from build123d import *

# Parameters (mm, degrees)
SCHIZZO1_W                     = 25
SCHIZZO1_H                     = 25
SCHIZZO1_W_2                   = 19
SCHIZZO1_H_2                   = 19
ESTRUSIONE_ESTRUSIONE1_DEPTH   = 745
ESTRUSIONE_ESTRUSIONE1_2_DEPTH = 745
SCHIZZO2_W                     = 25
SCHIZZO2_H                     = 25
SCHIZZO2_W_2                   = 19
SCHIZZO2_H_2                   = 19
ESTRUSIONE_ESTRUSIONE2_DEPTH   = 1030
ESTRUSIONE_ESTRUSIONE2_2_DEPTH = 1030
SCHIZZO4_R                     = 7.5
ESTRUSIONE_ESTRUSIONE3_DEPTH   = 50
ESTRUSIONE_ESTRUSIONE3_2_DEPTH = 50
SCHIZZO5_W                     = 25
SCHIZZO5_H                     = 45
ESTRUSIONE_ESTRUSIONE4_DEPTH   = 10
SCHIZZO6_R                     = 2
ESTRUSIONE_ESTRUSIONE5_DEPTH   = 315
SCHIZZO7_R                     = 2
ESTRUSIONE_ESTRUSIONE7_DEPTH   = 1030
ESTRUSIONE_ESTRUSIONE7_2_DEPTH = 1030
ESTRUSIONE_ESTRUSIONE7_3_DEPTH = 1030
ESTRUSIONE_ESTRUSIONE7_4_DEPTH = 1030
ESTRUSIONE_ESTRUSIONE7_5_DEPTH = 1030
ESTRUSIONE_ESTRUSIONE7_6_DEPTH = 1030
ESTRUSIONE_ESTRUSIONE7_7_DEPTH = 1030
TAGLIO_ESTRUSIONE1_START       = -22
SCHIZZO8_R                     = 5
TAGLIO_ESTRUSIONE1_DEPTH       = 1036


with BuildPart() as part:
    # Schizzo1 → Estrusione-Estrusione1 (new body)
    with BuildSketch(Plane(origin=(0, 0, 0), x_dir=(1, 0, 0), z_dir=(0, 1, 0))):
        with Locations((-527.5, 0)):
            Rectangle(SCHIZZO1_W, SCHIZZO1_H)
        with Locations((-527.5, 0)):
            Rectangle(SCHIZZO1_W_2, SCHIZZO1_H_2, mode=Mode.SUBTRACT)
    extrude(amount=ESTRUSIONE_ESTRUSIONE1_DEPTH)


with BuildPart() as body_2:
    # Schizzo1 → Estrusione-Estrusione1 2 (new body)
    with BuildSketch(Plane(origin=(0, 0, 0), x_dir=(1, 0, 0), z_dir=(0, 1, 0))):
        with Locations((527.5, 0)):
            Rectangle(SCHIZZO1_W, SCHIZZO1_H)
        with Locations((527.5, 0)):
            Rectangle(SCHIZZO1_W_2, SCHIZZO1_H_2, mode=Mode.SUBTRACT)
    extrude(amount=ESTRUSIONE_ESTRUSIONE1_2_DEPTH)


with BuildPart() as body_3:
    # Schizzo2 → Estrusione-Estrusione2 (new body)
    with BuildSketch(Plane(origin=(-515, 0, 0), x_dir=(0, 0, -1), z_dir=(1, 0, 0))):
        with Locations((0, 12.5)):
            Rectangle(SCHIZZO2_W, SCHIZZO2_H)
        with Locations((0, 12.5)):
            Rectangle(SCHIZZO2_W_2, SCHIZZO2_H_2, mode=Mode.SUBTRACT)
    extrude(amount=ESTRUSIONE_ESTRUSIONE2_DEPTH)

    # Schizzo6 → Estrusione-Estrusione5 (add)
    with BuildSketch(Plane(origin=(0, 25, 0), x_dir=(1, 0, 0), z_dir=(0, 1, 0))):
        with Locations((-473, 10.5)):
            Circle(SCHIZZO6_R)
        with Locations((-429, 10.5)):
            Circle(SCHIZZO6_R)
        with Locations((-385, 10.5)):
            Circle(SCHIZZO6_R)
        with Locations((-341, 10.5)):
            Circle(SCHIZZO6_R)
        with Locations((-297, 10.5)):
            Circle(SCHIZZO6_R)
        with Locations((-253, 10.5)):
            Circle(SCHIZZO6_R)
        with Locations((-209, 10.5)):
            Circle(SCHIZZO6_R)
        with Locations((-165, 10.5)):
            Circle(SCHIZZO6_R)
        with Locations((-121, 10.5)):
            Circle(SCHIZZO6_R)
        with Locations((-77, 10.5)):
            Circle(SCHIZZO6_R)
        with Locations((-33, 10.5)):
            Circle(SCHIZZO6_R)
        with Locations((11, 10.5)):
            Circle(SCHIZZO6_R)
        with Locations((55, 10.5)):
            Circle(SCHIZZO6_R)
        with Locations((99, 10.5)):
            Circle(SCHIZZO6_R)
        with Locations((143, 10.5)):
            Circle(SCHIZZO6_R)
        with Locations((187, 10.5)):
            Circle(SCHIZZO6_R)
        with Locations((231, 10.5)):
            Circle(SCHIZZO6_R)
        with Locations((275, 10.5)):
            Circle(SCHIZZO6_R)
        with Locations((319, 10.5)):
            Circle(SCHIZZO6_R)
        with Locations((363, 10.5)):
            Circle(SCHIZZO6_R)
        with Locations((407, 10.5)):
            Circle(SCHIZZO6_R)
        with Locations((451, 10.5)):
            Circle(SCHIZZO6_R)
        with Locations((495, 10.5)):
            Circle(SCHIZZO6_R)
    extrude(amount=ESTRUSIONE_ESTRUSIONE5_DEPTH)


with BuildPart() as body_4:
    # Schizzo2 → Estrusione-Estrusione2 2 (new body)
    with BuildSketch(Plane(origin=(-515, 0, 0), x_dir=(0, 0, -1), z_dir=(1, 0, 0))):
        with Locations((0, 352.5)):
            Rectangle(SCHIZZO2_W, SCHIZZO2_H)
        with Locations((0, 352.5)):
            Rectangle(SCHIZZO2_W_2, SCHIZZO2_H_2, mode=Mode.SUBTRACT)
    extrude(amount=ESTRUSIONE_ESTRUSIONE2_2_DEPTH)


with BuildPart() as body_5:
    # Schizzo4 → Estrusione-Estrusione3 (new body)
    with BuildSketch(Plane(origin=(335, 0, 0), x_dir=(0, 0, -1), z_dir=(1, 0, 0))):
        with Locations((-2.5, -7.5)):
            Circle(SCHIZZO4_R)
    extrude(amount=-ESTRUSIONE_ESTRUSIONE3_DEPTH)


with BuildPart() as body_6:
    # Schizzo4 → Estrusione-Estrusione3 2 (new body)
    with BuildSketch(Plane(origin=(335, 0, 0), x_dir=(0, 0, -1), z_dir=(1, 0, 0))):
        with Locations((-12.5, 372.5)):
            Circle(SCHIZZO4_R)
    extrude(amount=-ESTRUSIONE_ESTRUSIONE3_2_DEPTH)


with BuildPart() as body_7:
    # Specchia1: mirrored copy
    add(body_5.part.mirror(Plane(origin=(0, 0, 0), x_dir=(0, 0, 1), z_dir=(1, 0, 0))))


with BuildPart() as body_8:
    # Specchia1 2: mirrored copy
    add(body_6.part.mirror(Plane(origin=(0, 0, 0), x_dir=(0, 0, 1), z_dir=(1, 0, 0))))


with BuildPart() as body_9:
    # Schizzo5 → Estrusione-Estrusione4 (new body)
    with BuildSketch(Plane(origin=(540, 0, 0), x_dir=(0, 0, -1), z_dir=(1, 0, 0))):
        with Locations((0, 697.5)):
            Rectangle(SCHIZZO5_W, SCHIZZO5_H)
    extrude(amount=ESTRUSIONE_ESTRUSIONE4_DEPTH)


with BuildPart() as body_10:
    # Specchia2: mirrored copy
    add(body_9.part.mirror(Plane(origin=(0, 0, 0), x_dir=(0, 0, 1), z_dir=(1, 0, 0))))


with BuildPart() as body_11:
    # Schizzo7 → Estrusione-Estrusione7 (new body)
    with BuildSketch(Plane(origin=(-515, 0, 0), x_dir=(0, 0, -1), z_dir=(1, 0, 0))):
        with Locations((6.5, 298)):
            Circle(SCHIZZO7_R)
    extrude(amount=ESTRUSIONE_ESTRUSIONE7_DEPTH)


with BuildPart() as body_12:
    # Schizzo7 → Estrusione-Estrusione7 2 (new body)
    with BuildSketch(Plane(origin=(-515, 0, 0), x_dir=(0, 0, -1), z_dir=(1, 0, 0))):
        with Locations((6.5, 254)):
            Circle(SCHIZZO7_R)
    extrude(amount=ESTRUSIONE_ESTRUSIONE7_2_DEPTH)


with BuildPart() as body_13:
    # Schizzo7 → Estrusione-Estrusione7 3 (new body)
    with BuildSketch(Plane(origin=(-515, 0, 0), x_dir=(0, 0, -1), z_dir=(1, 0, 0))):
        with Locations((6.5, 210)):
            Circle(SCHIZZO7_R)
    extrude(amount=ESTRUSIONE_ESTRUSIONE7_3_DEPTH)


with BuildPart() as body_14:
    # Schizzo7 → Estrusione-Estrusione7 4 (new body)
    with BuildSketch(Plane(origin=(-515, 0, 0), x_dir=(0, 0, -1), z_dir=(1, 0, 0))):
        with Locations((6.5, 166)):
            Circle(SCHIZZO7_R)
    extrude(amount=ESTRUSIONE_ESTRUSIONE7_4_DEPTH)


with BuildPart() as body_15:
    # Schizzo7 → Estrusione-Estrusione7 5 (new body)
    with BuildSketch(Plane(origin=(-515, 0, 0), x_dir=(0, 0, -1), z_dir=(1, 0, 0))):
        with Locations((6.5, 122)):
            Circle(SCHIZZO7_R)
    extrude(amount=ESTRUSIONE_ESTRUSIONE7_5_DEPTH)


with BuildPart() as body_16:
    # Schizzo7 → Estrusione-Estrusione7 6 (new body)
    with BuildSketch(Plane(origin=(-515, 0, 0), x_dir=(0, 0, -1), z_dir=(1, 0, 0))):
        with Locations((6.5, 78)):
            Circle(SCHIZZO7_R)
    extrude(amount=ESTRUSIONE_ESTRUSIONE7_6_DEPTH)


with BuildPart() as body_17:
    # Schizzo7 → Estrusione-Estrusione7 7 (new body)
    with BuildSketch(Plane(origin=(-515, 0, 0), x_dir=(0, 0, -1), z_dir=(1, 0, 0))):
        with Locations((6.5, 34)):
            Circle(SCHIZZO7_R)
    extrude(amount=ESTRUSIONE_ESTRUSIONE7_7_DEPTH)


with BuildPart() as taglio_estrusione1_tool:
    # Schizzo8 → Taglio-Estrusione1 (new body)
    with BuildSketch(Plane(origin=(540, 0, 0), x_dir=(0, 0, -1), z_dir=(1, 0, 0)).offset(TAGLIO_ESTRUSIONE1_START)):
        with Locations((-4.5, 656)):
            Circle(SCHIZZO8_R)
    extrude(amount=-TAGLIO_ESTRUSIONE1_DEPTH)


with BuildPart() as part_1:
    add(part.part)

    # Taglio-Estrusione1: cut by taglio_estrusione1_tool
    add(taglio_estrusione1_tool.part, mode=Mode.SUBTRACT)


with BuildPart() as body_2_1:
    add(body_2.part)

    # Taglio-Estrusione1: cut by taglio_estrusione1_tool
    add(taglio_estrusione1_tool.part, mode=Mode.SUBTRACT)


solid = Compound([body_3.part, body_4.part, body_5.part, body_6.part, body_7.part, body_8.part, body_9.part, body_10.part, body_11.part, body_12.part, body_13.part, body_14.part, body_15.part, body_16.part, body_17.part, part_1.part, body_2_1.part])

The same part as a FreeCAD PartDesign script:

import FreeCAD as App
import Part
import Sketcher
Q = App.Units.Quantity


def add_polygon(sketch, points):
    """Adds a closed chain of lines whose ends are joined by coincident constraints."""
    first, n = sketch.GeometryCount, len(points)
    for a, b in zip(points, points[1:] + points[:1]):
        sketch.addGeometry(Part.LineSegment(App.Vector(*a, 0), App.Vector(*b, 0)), False)
    for i in range(n):
        sketch.addConstraint(Sketcher.Constraint("Coincident", first + i, 2, first + (i + 1) % n, 1))

doc = App.newDocument("Part")
body = doc.addObject("PartDesign::Body", "Body")

# Sketch on XZ plane
sketch1 = body.newObject("Sketcher::SketchObject", "Sketch")
sketch1.AttachmentSupport = (doc.getObject("XZ_Plane"), [""])
sketch1.MapMode = "FlatFace"
add_polygon(sketch1, [(-540, -12), (-540, 12), (-515, 12), (-515, -12)])  # lines 0-3
add_polygon(sketch1, [(-518, 10), (-537, 10), (-537, -10), (-518, -10)])  # lines 4-7
sketch1.addConstraint(Sketcher.Constraint("Vertical", 0))
sketch1.addConstraint(Sketcher.Constraint("Horizontal", 1))
sketch1.addConstraint(Sketcher.Constraint("Vertical", 2))
sketch1.addConstraint(Sketcher.Constraint("Horizontal", 3))
sketch1.addConstraint(Sketcher.Constraint("Horizontal", 4))
sketch1.addConstraint(Sketcher.Constraint("Vertical", 5))
sketch1.addConstraint(Sketcher.Constraint("Horizontal", 6))
sketch1.addConstraint(Sketcher.Constraint("Vertical", 7))
sketch1.addConstraint(Sketcher.Constraint("Equal", 3, 0))
sketch1.addConstraint(Sketcher.Constraint("Equal", 6, 5))
sketch1.addConstraint(Sketcher.Constraint("DistanceX", 1, 1, 1, 2, Q("25 mm")))
sketch1.addConstraint(Sketcher.Constraint("DistanceX", 4, 2, 4, 1, Q("19 mm")))
sketch1.addConstraint(Sketcher.Constraint("DistanceX", 0, 2, -1, 1, Q("540 mm")))
sketch1.addConstraint(Sketcher.Constraint("DistanceX", 4, 2, -1, 1, Q("537 mm")))
sketch1.addConstraint(Sketcher.Constraint("DistanceY", 4, 2, 0, 2, Q("3 mm")))
sketch1.addConstraint(Sketcher.Constraint("DistanceY", -1, 1, 0, 2, Q("12.5 mm")))
pad1 = body.newObject("PartDesign::Pad", "Pad")
pad1.Profile = sketch1
pad1.Length = 745
pad1.Reversed = True
body2 = doc.addObject("PartDesign::Body", "Body001")

# Sketch on XZ plane
sketch2 = body2.newObject("Sketcher::SketchObject", "Sketch001")
sketch2.AttachmentSupport = (doc.getObject("XZ_Plane001"), [""])
sketch2.MapMode = "FlatFace"
add_polygon(sketch2, [(515, -12), (515, 12), (540, 12), (540, -12)])  # lines 0-3
add_polygon(sketch2, [(537, 10), (518, 10), (518, -10), (537, -10)])  # lines 4-7
sketch2.addConstraint(Sketcher.Constraint("Vertical", 0))
sketch2.addConstraint(Sketcher.Constraint("Horizontal", 1))
sketch2.addConstraint(Sketcher.Constraint("Vertical", 2))
sketch2.addConstraint(Sketcher.Constraint("Horizontal", 3))
sketch2.addConstraint(Sketcher.Constraint("Horizontal", 4))
sketch2.addConstraint(Sketcher.Constraint("Vertical", 5))
sketch2.addConstraint(Sketcher.Constraint("Horizontal", 6))
sketch2.addConstraint(Sketcher.Constraint("Vertical", 7))
sketch2.addConstraint(Sketcher.Constraint("Equal", 3, 0))
sketch2.addConstraint(Sketcher.Constraint("Equal", 6, 5))
sketch2.addConstraint(Sketcher.Constraint("DistanceX", 1, 1, 1, 2, Q("25 mm")))
sketch2.addConstraint(Sketcher.Constraint("DistanceX", 4, 2, 4, 1, Q("19 mm")))
sketch2.addConstraint(Sketcher.Constraint("DistanceX", -1, 1, 0, 2, Q("515 mm")))
sketch2.addConstraint(Sketcher.Constraint("DistanceX", -1, 1, 4, 2, Q("518 mm")))
sketch2.addConstraint(Sketcher.Constraint("DistanceY", 4, 2, 0, 2, Q("3 mm")))
sketch2.addConstraint(Sketcher.Constraint("DistanceY", -1, 1, 0, 2, Q("12.5 mm")))
pad2 = body2.newObject("PartDesign::Pad", "Pad001")
pad2.Profile = sketch2
pad2.Length = 745
pad2.Reversed = True
body3 = doc.addObject("PartDesign::Body", "Body002")

# Sketch on YZ plane
sketch3 = body3.newObject("Sketcher::SketchObject", "Sketch002")
sketch3.AttachmentSupport = (doc.getObject("YZ_Plane002"), [""])
sketch3.MapMode = "FlatFace"
sketch3.AttachmentOffset = App.Placement(App.Vector(0, 0, -515), App.Rotation())
add_polygon(sketch3, [(25, 12), (0, 12), (0, -12), (25, -12)])  # lines 0-3
add_polygon(sketch3, [(3, -10), (3, 10), (22, 10), (22, -10)])  # lines 4-7
sketch3.addConstraint(Sketcher.Constraint("Horizontal", 0))
sketch3.addConstraint(Sketcher.Constraint("Vertical", 1))
sketch3.addConstraint(Sketcher.Constraint("Horizontal", 2))
sketch3.addConstraint(Sketcher.Constraint("Vertical", 3))
sketch3.addConstraint(Sketcher.Constraint("Vertical", 4))
sketch3.addConstraint(Sketcher.Constraint("Horizontal", 5))
sketch3.addConstraint(Sketcher.Constraint("Vertical", 6))
sketch3.addConstraint(Sketcher.Constraint("Horizontal", 7))
sketch3.addConstraint(Sketcher.Constraint("Symmetric", 0, 2, 1, 2, -1, 1))
sketch3.addConstraint(Sketcher.Constraint("Equal", 2, 1))
sketch3.addConstraint(Sketcher.Constraint("Equal", 7, 4))
sketch3.addConstraint(Sketcher.Constraint("DistanceX", 0, 2, 0, 1, Q("25 mm")))
sketch3.addConstraint(Sketcher.Constraint("DistanceX", 5, 1, 5, 2, Q("19 mm")))
sketch3.addConstraint(Sketcher.Constraint("DistanceX", -1, 1, 4, 2, Q("3 mm")))
sketch3.addConstraint(Sketcher.Constraint("DistanceY", 4, 2, 0, 2, Q("3 mm")))
pad3 = body3.newObject("PartDesign::Pad", "Pad002")
pad3.Profile = sketch3
pad3.Length = 1030

# Sketch on XZ plane
sketch4 = body3.newObject("Sketcher::SketchObject", "Sketch003")
sketch4.AttachmentSupport = (doc.getObject("XZ_Plane002"), [""])
sketch4.MapMode = "FlatFace"
sketch4.AttachmentOffset = App.Placement(App.Vector(0, 0, -25), App.Rotation())
sketch4.addGeometry(Part.Circle(App.Vector(-473, -10.5, 0), App.Vector(0, 0, 1), 2), False)
sketch4.addGeometry(Part.Circle(App.Vector(-429, -10.5, 0), App.Vector(0, 0, 1), 2), False)
sketch4.addGeometry(Part.Circle(App.Vector(-385, -10.5, 0), App.Vector(0, 0, 1), 2), False)
sketch4.addGeometry(Part.Circle(App.Vector(-341, -10.5, 0), App.Vector(0, 0, 1), 2), False)
sketch4.addGeometry(Part.Circle(App.Vector(-297, -10.5, 0), App.Vector(0, 0, 1), 2), False)
sketch4.addGeometry(Part.Circle(App.Vector(-253, -10.5, 0), App.Vector(0, 0, 1), 2), False)
sketch4.addGeometry(Part.Circle(App.Vector(-209, -10.5, 0), App.Vector(0, 0, 1), 2), False)
sketch4.addGeometry(Part.Circle(App.Vector(-165, -10.5, 0), App.Vector(0, 0, 1), 2), False)
sketch4.addGeometry(Part.Circle(App.Vector(-121, -10.5, 0), App.Vector(0, 0, 1), 2), False)
sketch4.addGeometry(Part.Circle(App.Vector(-77, -10.5, 0), App.Vector(0, 0, 1), 2), False)
sketch4.addGeometry(Part.Circle(App.Vector(-33, -10.5, 0), App.Vector(0, 0, 1), 2), False)
sketch4.addGeometry(Part.Circle(App.Vector(11, -10.5, 0), App.Vector(0, 0, 1), 2), False)
sketch4.addGeometry(Part.Circle(App.Vector(55, -10.5, 0), App.Vector(0, 0, 1), 2), False)
sketch4.addGeometry(Part.Circle(App.Vector(99, -10.5, 0), App.Vector(0, 0, 1), 2), False)
sketch4.addGeometry(Part.Circle(App.Vector(143, -10.5, 0), App.Vector(0, 0, 1), 2), False)
sketch4.addGeometry(Part.Circle(App.Vector(187, -10.5, 0), App.Vector(0, 0, 1), 2), False)
sketch4.addGeometry(Part.Circle(App.Vector(231, -10.5, 0), App.Vector(0, 0, 1), 2), False)
sketch4.addGeometry(Part.Circle(App.Vector(275, -10.5, 0), App.Vector(0, 0, 1), 2), False)
sketch4.addGeometry(Part.Circle(App.Vector(319, -10.5, 0), App.Vector(0, 0, 1), 2), False)
sketch4.addGeometry(Part.Circle(App.Vector(363, -10.5, 0), App.Vector(0, 0, 1), 2), False)
sketch4.addGeometry(Part.Circle(App.Vector(407, -10.5, 0), App.Vector(0, 0, 1), 2), False)
sketch4.addGeometry(Part.Circle(App.Vector(451, -10.5, 0), App.Vector(0, 0, 1), 2), False)
sketch4.addGeometry(Part.Circle(App.Vector(495, -10.5, 0), App.Vector(0, 0, 1), 2), False)
sketch4.addConstraint(Sketcher.Constraint("Equal", 0, 1))
sketch4.addConstraint(Sketcher.Constraint("Equal", 1, 2))
sketch4.addConstraint(Sketcher.Constraint("Equal", 2, 3))
sketch4.addConstraint(Sketcher.Constraint("Equal", 3, 4))
sketch4.addConstraint(Sketcher.Constraint("Equal", 4, 5))
sketch4.addConstraint(Sketcher.Constraint("Equal", 5, 6))
sketch4.addConstraint(Sketcher.Constraint("Equal", 6, 7))
sketch4.addConstraint(Sketcher.Constraint("Equal", 7, 8))
sketch4.addConstraint(Sketcher.Constraint("Equal", 8, 9))
sketch4.addConstraint(Sketcher.Constraint("Equal", 9, 10))
sketch4.addConstraint(Sketcher.Constraint("Equal", 10, 11))
sketch4.addConstraint(Sketcher.Constraint("Equal", 11, 12))
sketch4.addConstraint(Sketcher.Constraint("Equal", 12, 13))
sketch4.addConstraint(Sketcher.Constraint("Equal", 13, 14))
sketch4.addConstraint(Sketcher.Constraint("Equal", 14, 15))
sketch4.addConstraint(Sketcher.Constraint("Equal", 15, 16))
sketch4.addConstraint(Sketcher.Constraint("Equal", 16, 17))
sketch4.addConstraint(Sketcher.Constraint("Equal", 17, 18))
sketch4.addConstraint(Sketcher.Constraint("Equal", 18, 19))
sketch4.addConstraint(Sketcher.Constraint("Equal", 19, 20))
sketch4.addConstraint(Sketcher.Constraint("Equal", 20, 21))
sketch4.addConstraint(Sketcher.Constraint("Equal", 21, 22))
sketch4.addConstraint(Sketcher.Constraint("Horizontal", 0, 3, 1, 3))
sketch4.addConstraint(Sketcher.Constraint("Horizontal", 1, 3, 2, 3))
sketch4.addConstraint(Sketcher.Constraint("Horizontal", 2, 3, 3, 3))
sketch4.addConstraint(Sketcher.Constraint("Horizontal", 3, 3, 4, 3))
sketch4.addConstraint(Sketcher.Constraint("Horizontal", 4, 3, 5, 3))
sketch4.addConstraint(Sketcher.Constraint("Horizontal", 5, 3, 6, 3))
sketch4.addConstraint(Sketcher.Constraint("Horizontal", 6, 3, 7, 3))
sketch4.addConstraint(Sketcher.Constraint("Horizontal", 7, 3, 8, 3))
sketch4.addConstraint(Sketcher.Constraint("Horizontal", 8, 3, 9, 3))
sketch4.addConstraint(Sketcher.Constraint("Horizontal", 9, 3, 10, 3))
sketch4.addConstraint(Sketcher.Constraint("Horizontal", 10, 3, 11, 3))
sketch4.addConstraint(Sketcher.Constraint("Horizontal", 11, 3, 12, 3))
sketch4.addConstraint(Sketcher.Constraint("Horizontal", 12, 3, 13, 3))
sketch4.addConstraint(Sketcher.Constraint("Horizontal", 13, 3, 14, 3))
sketch4.addConstraint(Sketcher.Constraint("Horizontal", 14, 3, 15, 3))
sketch4.addConstraint(Sketcher.Constraint("Horizontal", 15, 3, 16, 3))
sketch4.addConstraint(Sketcher.Constraint("Horizontal", 16, 3, 17, 3))
sketch4.addConstraint(Sketcher.Constraint("Horizontal", 17, 3, 18, 3))
sketch4.addConstraint(Sketcher.Constraint("Horizontal", 18, 3, 19, 3))
sketch4.addConstraint(Sketcher.Constraint("Horizontal", 19, 3, 20, 3))
sketch4.addConstraint(Sketcher.Constraint("Horizontal", 20, 3, 21, 3))
sketch4.addConstraint(Sketcher.Constraint("Horizontal", 21, 3, 22, 3))
sketch4.addConstraint(Sketcher.Constraint("Diameter", 0, Q("4 mm")))
sketch4.addConstraint(Sketcher.Constraint("DistanceX", 0, 3, -1, 1, Q("473 mm")))
sketch4.addConstraint(Sketcher.Constraint("DistanceX", 1, 3, -1, 1, Q("429 mm")))
sketch4.addConstraint(Sketcher.Constraint("DistanceX", 2, 3, -1, 1, Q("385 mm")))
sketch4.addConstraint(Sketcher.Constraint("DistanceX", 3, 3, -1, 1, Q("341 mm")))
sketch4.addConstraint(Sketcher.Constraint("DistanceX", 4, 3, -1, 1, Q("297 mm")))
sketch4.addConstraint(Sketcher.Constraint("DistanceX", 5, 3, -1, 1, Q("253 mm")))
sketch4.addConstraint(Sketcher.Constraint("DistanceX", 6, 3, -1, 1, Q("209 mm")))
sketch4.addConstraint(Sketcher.Constraint("DistanceX", 7, 3, -1, 1, Q("165 mm")))
sketch4.addConstraint(Sketcher.Constraint("DistanceX", 8, 3, -1, 1, Q("121 mm")))
sketch4.addConstraint(Sketcher.Constraint("DistanceX", 9, 3, -1, 1, Q("77 mm")))
sketch4.addConstraint(Sketcher.Constraint("DistanceX", 10, 3, -1, 1, Q("33 mm")))
sketch4.addConstraint(Sketcher.Constraint("DistanceX", -1, 1, 11, 3, Q("11 mm")))
sketch4.addConstraint(Sketcher.Constraint("DistanceX", -1, 1, 12, 3, Q("55 mm")))
sketch4.addConstraint(Sketcher.Constraint("DistanceX", -1, 1, 13, 3, Q("99 mm")))
sketch4.addConstraint(Sketcher.Constraint("DistanceX", -1, 1, 14, 3, Q("143 mm")))
sketch4.addConstraint(Sketcher.Constraint("DistanceX", -1, 1, 15, 3, Q("187 mm")))
sketch4.addConstraint(Sketcher.Constraint("DistanceX", -1, 1, 16, 3, Q("231 mm")))
sketch4.addConstraint(Sketcher.Constraint("DistanceX", -1, 1, 17, 3, Q("275 mm")))
sketch4.addConstraint(Sketcher.Constraint("DistanceX", -1, 1, 18, 3, Q("319 mm")))
sketch4.addConstraint(Sketcher.Constraint("DistanceX", -1, 1, 19, 3, Q("363 mm")))
sketch4.addConstraint(Sketcher.Constraint("DistanceX", -1, 1, 20, 3, Q("407 mm")))
sketch4.addConstraint(Sketcher.Constraint("DistanceX", -1, 1, 21, 3, Q("451 mm")))
sketch4.addConstraint(Sketcher.Constraint("DistanceX", -1, 1, 22, 3, Q("495 mm")))
sketch4.addConstraint(Sketcher.Constraint("DistanceY", 0, 3, -1, 1, Q("10.5 mm")))
pad4 = body3.newObject("PartDesign::Pad", "Pad003")
pad4.Profile = sketch4
pad4.Length = 315
pad4.Reversed = True
body4 = doc.addObject("PartDesign::Body", "Body003")

# Sketch on YZ plane
sketch5 = body4.newObject("Sketcher::SketchObject", "Sketch004")
sketch5.AttachmentSupport = (doc.getObject("YZ_Plane003"), [""])
sketch5.MapMode = "FlatFace"
sketch5.AttachmentOffset = App.Placement(App.Vector(0, 0, -515), App.Rotation())
add_polygon(sketch5, [(365, 12), (340, 12), (340, -12), (365, -12)])  # lines 0-3
add_polygon(sketch5, [(343, -10), (343, 10), (362, 10), (362, -10)])  # lines 4-7
sketch5.addConstraint(Sketcher.Constraint("Horizontal", 0))
sketch5.addConstraint(Sketcher.Constraint("Vertical", 1))
sketch5.addConstraint(Sketcher.Constraint("Horizontal", 2))
sketch5.addConstraint(Sketcher.Constraint("Vertical", 3))
sketch5.addConstraint(Sketcher.Constraint("Vertical", 4))
sketch5.addConstraint(Sketcher.Constraint("Horizontal", 5))
sketch5.addConstraint(Sketcher.Constraint("Vertical", 6))
sketch5.addConstraint(Sketcher.Constraint("Horizontal", 7))
sketch5.addConstraint(Sketcher.Constraint("Equal", 2, 1))
sketch5.addConstraint(Sketcher.Constraint("Equal", 7, 4))
sketch5.addConstraint(Sketcher.Constraint("DistanceX", 0, 2, 0, 1, Q("25 mm")))
sketch5.addConstraint(Sketcher.Constraint("DistanceX", 5, 1, 5, 2, Q("19 mm")))
sketch5.addConstraint(Sketcher.Constraint("DistanceX", -1, 1, 0, 2, Q("340 mm")))
sketch5.addConstraint(Sketcher.Constraint("DistanceX", -1, 1, 4, 2, Q("343 mm")))
sketch5.addConstraint(Sketcher.Constraint("DistanceY", 4, 2, 0, 2, Q("3 mm")))
sketch5.addConstraint(Sketcher.Constraint("DistanceY", -1, 1, 0, 2, Q("12.5 mm")))
pad5 = body4.newObject("PartDesign::Pad", "Pad004")
pad5.Profile = sketch5
pad5.Length = 1030
body5 = doc.addObject("PartDesign::Body", "Body004")

# Sketch on YZ plane
sketch6 = body5.newObject("Sketcher::SketchObject", "Sketch005")
sketch6.AttachmentSupport = (doc.getObject("YZ_Plane004"), [""])
sketch6.MapMode = "FlatFace"
sketch6.AttachmentOffset = App.Placement(App.Vector(0, 0, 335), App.Rotation())
sketch6.addGeometry(Part.Circle(App.Vector(-8, 2, 0), App.Vector(0, 0, 1), 8), False)
sketch6.addConstraint(Sketcher.Constraint("Diameter", 0, Q("15 mm")))
sketch6.addConstraint(Sketcher.Constraint("DistanceX", 0, 3, -1, 1, Q("7.5 mm")))
sketch6.addConstraint(Sketcher.Constraint("DistanceY", -1, 1, 0, 3, Q("2.5 mm")))
pad6 = body5.newObject("PartDesign::Pad", "Pad005")
pad6.Profile = sketch6
pad6.Length = 50
pad6.Reversed = True
body6 = doc.addObject("PartDesign::Body", "Body005")

# Sketch on YZ plane
sketch7 = body6.newObject("Sketcher::SketchObject", "Sketch006")
sketch7.AttachmentSupport = (doc.getObject("YZ_Plane005"), [""])
sketch7.MapMode = "FlatFace"
sketch7.AttachmentOffset = App.Placement(App.Vector(0, 0, 335), App.Rotation())
sketch7.addGeometry(Part.Circle(App.Vector(372, 12, 0), App.Vector(0, 0, 1), 8), False)
sketch7.addConstraint(Sketcher.Constraint("Diameter", 0, Q("15 mm")))
sketch7.addConstraint(Sketcher.Constraint("DistanceX", -1, 1, 0, 3, Q("372.5 mm")))
sketch7.addConstraint(Sketcher.Constraint("DistanceY", -1, 1, 0, 3, Q("12.5 mm")))
pad7 = body6.newObject("PartDesign::Pad", "Pad006")
pad7.Profile = sketch7
pad7.Length = 50
pad7.Reversed = True
body7 = doc.addObject("PartDesign::Body", "Body006")
doc.recompute()

mirroring = doc.addObject("Part::Mirroring", "Mirroring")
mirroring.Source = body5
mirroring.Base = App.Vector(0, 0, 0)
mirroring.Normal = App.Vector(1, 0, 0)
body7.BaseFeature = mirroring
doc.recompute()
body8 = doc.addObject("PartDesign::Body", "Body007")
doc.recompute()

mirroring2 = doc.addObject("Part::Mirroring", "Mirroring001")
mirroring2.Source = body6
mirroring2.Base = App.Vector(0, 0, 0)
mirroring2.Normal = App.Vector(1, 0, 0)
body8.BaseFeature = mirroring2
doc.recompute()
body9 = doc.addObject("PartDesign::Body", "Body008")

# Sketch on YZ plane
sketch8 = body9.newObject("Sketcher::SketchObject", "Sketch007")
sketch8.AttachmentSupport = (doc.getObject("YZ_Plane008"), [""])
sketch8.MapMode = "FlatFace"
sketch8.AttachmentOffset = App.Placement(App.Vector(0, 0, 540), App.Rotation())
add_polygon(sketch8, [(720, 12), (675, 12), (675, -12), (720, -12)])  # lines 0-3
sketch8.addConstraint(Sketcher.Constraint("Horizontal", 0))
sketch8.addConstraint(Sketcher.Constraint("Vertical", 1))
sketch8.addConstraint(Sketcher.Constraint("Horizontal", 2))
sketch8.addConstraint(Sketcher.Constraint("Vertical", 3))
sketch8.addConstraint(Sketcher.Constraint("DistanceX", 0, 2, 0, 1, Q("45 mm")))
sketch8.addConstraint(Sketcher.Constraint("DistanceY", 1, 2, 1, 1, Q("25 mm")))
sketch8.addConstraint(Sketcher.Constraint("DistanceX", -1, 1, 0, 2, Q("675 mm")))
sketch8.addConstraint(Sketcher.Constraint("DistanceY", -1, 1, 0, 2, Q("12.5 mm")))
pad8 = body9.newObject("PartDesign::Pad", "Pad007")
pad8.Profile = sketch8
pad8.Length = 10
body10 = doc.addObject("PartDesign::Body", "Body009")
doc.recompute()

mirroring3 = doc.addObject("Part::Mirroring", "Mirroring002")
mirroring3.Source = body9
mirroring3.Base = App.Vector(0, 0, 0)
mirroring3.Normal = App.Vector(1, 0, 0)
body10.BaseFeature = mirroring3
doc.recompute()
body11 = doc.addObject("PartDesign::Body", "Body010")

# Sketch on YZ plane
sketch9 = body11.newObject("Sketcher::SketchObject", "Sketch008")
sketch9.AttachmentSupport = (doc.getObject("YZ_Plane010"), [""])
sketch9.MapMode = "FlatFace"
sketch9.AttachmentOffset = App.Placement(App.Vector(0, 0, -515), App.Rotation())
sketch9.addGeometry(Part.Circle(App.Vector(298, -6.5, 0), App.Vector(0, 0, 1), 2), False)
sketch9.addConstraint(Sketcher.Constraint("Diameter", 0, Q("4 mm")))
sketch9.addConstraint(Sketcher.Constraint("DistanceX", -1, 1, 0, 3, Q("298 mm")))
sketch9.addConstraint(Sketcher.Constraint("DistanceY", 0, 3, -1, 1, Q("6.5 mm")))
pad9 = body11.newObject("PartDesign::Pad", "Pad008")
pad9.Profile = sketch9
pad9.Length = 1030
body12 = doc.addObject("PartDesign::Body", "Body011")

# Sketch on YZ plane
sketch10 = body12.newObject("Sketcher::SketchObject", "Sketch009")
sketch10.AttachmentSupport = (doc.getObject("YZ_Plane011"), [""])
sketch10.MapMode = "FlatFace"
sketch10.AttachmentOffset = App.Placement(App.Vector(0, 0, -515), App.Rotation())
sketch10.addGeometry(Part.Circle(App.Vector(254, -6.5, 0), App.Vector(0, 0, 1), 2), False)
sketch10.addConstraint(Sketcher.Constraint("Diameter", 0, Q("4 mm")))
sketch10.addConstraint(Sketcher.Constraint("DistanceX", -1, 1, 0, 3, Q("254 mm")))
sketch10.addConstraint(Sketcher.Constraint("DistanceY", 0, 3, -1, 1, Q("6.5 mm")))
pad10 = body12.newObject("PartDesign::Pad", "Pad009")
pad10.Profile = sketch10
pad10.Length = 1030
body13 = doc.addObject("PartDesign::Body", "Body012")

# Sketch on YZ plane
sketch11 = body13.newObject("Sketcher::SketchObject", "Sketch010")
sketch11.AttachmentSupport = (doc.getObject("YZ_Plane012"), [""])
sketch11.MapMode = "FlatFace"
sketch11.AttachmentOffset = App.Placement(App.Vector(0, 0, -515), App.Rotation())
sketch11.addGeometry(Part.Circle(App.Vector(210, -6.5, 0), App.Vector(0, 0, 1), 2), False)
sketch11.addConstraint(Sketcher.Constraint("Diameter", 0, Q("4 mm")))
sketch11.addConstraint(Sketcher.Constraint("DistanceX", -1, 1, 0, 3, Q("210 mm")))
sketch11.addConstraint(Sketcher.Constraint("DistanceY", 0, 3, -1, 1, Q("6.5 mm")))
pad11 = body13.newObject("PartDesign::Pad", "Pad010")
pad11.Profile = sketch11
pad11.Length = 1030
body14 = doc.addObject("PartDesign::Body", "Body013")

# Sketch on YZ plane
sketch12 = body14.newObject("Sketcher::SketchObject", "Sketch011")
sketch12.AttachmentSupport = (doc.getObject("YZ_Plane013"), [""])
sketch12.MapMode = "FlatFace"
sketch12.AttachmentOffset = App.Placement(App.Vector(0, 0, -515), App.Rotation())
sketch12.addGeometry(Part.Circle(App.Vector(166, -6.5, 0), App.Vector(0, 0, 1), 2), False)
sketch12.addConstraint(Sketcher.Constraint("Diameter", 0, Q("4 mm")))
sketch12.addConstraint(Sketcher.Constraint("DistanceX", -1, 1, 0, 3, Q("166 mm")))
sketch12.addConstraint(Sketcher.Constraint("DistanceY", 0, 3, -1, 1, Q("6.5 mm")))
pad12 = body14.newObject("PartDesign::Pad", "Pad011")
pad12.Profile = sketch12
pad12.Length = 1030
body15 = doc.addObject("PartDesign::Body", "Body014")

# Sketch on YZ plane
sketch13 = body15.newObject("Sketcher::SketchObject", "Sketch012")
sketch13.AttachmentSupport = (doc.getObject("YZ_Plane014"), [""])
sketch13.MapMode = "FlatFace"
sketch13.AttachmentOffset = App.Placement(App.Vector(0, 0, -515), App.Rotation())
sketch13.addGeometry(Part.Circle(App.Vector(122, -6.5, 0), App.Vector(0, 0, 1), 2), False)
sketch13.addConstraint(Sketcher.Constraint("Diameter", 0, Q("4 mm")))
sketch13.addConstraint(Sketcher.Constraint("DistanceX", -1, 1, 0, 3, Q("122 mm")))
sketch13.addConstraint(Sketcher.Constraint("DistanceY", 0, 3, -1, 1, Q("6.5 mm")))
pad13 = body15.newObject("PartDesign::Pad", "Pad012")
pad13.Profile = sketch13
pad13.Length = 1030
body16 = doc.addObject("PartDesign::Body", "Body015")

# Sketch on YZ plane
sketch14 = body16.newObject("Sketcher::SketchObject", "Sketch013")
sketch14.AttachmentSupport = (doc.getObject("YZ_Plane015"), [""])
sketch14.MapMode = "FlatFace"
sketch14.AttachmentOffset = App.Placement(App.Vector(0, 0, -515), App.Rotation())
sketch14.addGeometry(Part.Circle(App.Vector(78, -6.5, 0), App.Vector(0, 0, 1), 2), False)
sketch14.addConstraint(Sketcher.Constraint("Diameter", 0, Q("4 mm")))
sketch14.addConstraint(Sketcher.Constraint("DistanceX", -1, 1, 0, 3, Q("78 mm")))
sketch14.addConstraint(Sketcher.Constraint("DistanceY", 0, 3, -1, 1, Q("6.5 mm")))
pad14 = body16.newObject("PartDesign::Pad", "Pad013")
pad14.Profile = sketch14
pad14.Length = 1030
body17 = doc.addObject("PartDesign::Body", "Body016")

# Sketch on YZ plane
sketch15 = body17.newObject("Sketcher::SketchObject", "Sketch014")
sketch15.AttachmentSupport = (doc.getObject("YZ_Plane016"), [""])
sketch15.MapMode = "FlatFace"
sketch15.AttachmentOffset = App.Placement(App.Vector(0, 0, -515), App.Rotation())
sketch15.addGeometry(Part.Circle(App.Vector(34, -6.5, 0), App.Vector(0, 0, 1), 2), False)
sketch15.addConstraint(Sketcher.Constraint("Diameter", 0, Q("4 mm")))
sketch15.addConstraint(Sketcher.Constraint("DistanceX", -1, 1, 0, 3, Q("34 mm")))
sketch15.addConstraint(Sketcher.Constraint("DistanceY", 0, 3, -1, 1, Q("6.5 mm")))
pad15 = body17.newObject("PartDesign::Pad", "Pad014")
pad15.Profile = sketch15
pad15.Length = 1030
body18 = doc.addObject("PartDesign::Body", "Body017")

# Sketch on YZ plane
sketch16 = body18.newObject("Sketcher::SketchObject", "Sketch015")
sketch16.AttachmentSupport = (doc.getObject("YZ_Plane017"), [""])
sketch16.MapMode = "FlatFace"
sketch16.AttachmentOffset = App.Placement(App.Vector(0, 0, 518), App.Rotation())
sketch16.addGeometry(Part.Circle(App.Vector(656, 4, 0), App.Vector(0, 0, 1), 5), False)
sketch16.addConstraint(Sketcher.Constraint("Diameter", 0, Q("10 mm")))
sketch16.addConstraint(Sketcher.Constraint("DistanceX", -1, 1, 0, 3, Q("656 mm")))
sketch16.addConstraint(Sketcher.Constraint("DistanceY", -1, 1, 0, 3, Q("4.5 mm")))
pad16 = body18.newObject("PartDesign::Pad", "Pad015")
pad16.Profile = sketch16
pad16.Length = 1036
pad16.Reversed = True
doc.recompute()

body19 = doc.addObject("PartDesign::Body", "Body018")
body19.BaseFeature = body18
boolean = body.newObject("PartDesign::Boolean", "Boolean")
boolean.Type = "Cut"
boolean.addObjects([body19])
doc.recompute()

boolean2 = body2.newObject("PartDesign::Boolean", "Boolean001")
boolean2.Type = "Cut"
boolean2.addObjects([body18])

doc.recompute()
